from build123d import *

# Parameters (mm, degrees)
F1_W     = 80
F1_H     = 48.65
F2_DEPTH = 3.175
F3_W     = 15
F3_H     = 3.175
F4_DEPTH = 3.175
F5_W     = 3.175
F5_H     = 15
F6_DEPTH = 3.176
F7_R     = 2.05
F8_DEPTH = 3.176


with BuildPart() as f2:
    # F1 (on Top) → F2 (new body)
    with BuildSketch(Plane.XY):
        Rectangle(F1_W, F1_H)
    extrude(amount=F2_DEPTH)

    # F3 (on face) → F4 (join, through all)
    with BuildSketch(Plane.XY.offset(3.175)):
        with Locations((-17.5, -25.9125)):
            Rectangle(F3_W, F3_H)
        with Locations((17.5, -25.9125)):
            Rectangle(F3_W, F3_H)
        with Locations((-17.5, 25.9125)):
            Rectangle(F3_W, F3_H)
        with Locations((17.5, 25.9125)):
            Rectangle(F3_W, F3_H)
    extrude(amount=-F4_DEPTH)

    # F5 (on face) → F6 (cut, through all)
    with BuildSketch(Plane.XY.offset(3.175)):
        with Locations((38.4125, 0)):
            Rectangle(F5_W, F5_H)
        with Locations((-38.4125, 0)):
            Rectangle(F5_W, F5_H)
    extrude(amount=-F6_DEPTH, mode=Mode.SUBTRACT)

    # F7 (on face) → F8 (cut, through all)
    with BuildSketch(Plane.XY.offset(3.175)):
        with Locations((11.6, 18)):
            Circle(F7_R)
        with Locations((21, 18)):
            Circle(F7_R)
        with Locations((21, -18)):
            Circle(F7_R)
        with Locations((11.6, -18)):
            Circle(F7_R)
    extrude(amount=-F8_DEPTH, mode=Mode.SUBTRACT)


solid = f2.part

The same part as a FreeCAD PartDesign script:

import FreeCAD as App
import Part
import Sketcher
Q = App.Units.Quantity


def add_polygon(sketch, points):
    """Adds a closed chain of lines whose ends are joined by coincident constraints."""
    first, n = sketch.GeometryCount, len(points)
    for a, b in zip(points, points[1:] + points[:1]):
        sketch.addGeometry(Part.LineSegment(App.Vector(*a, 0), App.Vector(*b, 0)), False)
    for i in range(n):
        sketch.addConstraint(Sketcher.Constraint("Coincident", first + i, 2, first + (i + 1) % n, 1))

doc = App.newDocument("Part")
body = doc.addObject("PartDesign::Body", "Body")

sketch1 = body.newObject("Sketcher::SketchObject", "Sketch")
sketch1.AttachmentSupport = (doc.getObject("XY_Plane"), [""])
sketch1.MapMode = "FlatFace"
add_polygon(sketch1, [(-40, 24), (-40, -24), (40, -24), (40, 24)])
sketch1.addConstraint(Sketcher.Constraint("Vertical", 0))
sketch1.addConstraint(Sketcher.Constraint("Horizontal", 1))
sketch1.addConstraint(Sketcher.Constraint("Vertical", 2))
sketch1.addConstraint(Sketcher.Constraint("Horizontal", 3))
sketch1.addConstraint(Sketcher.Constraint("Symmetric", 0, 2, 2, 2, -1, 1))
sketch1.addConstraint(Sketcher.Constraint("DistanceX", 1, 1, 1, 2, Q("80 mm")))
sketch1.addConstraint(Sketcher.Constraint("DistanceY", 0, 2, 0, 1, Q("48.65 mm")))
pad1 = body.newObject("PartDesign::Pad", "Pad")
pad1.Profile = sketch1
pad1.Length = 3.175

sketch2 = body.newObject("Sketcher::SketchObject", "Sketch001")
sketch2.AttachmentSupport = (doc.getObject("XY_Plane"), [""])
sketch2.MapMode = "FlatFace"
sketch2.AttachmentOffset = App.Placement(App.Vector(0, 0, 3.175), App.Rotation())
add_polygon(sketch2, [(-25, -24.3), (-25, -27.5), (-10, -27.5), (-10, -24.3)])
add_polygon(sketch2, [(10, -24.3), (10, -27.5), (25, -27.5), (25, -24.3)])
add_polygon(sketch2, [(-25, 27.5), (-25, 24.3), (-10, 24.3), (-10, 27.5)])
add_polygon(sketch2, [(10, 27.5), (10, 24.3), (25, 24.3), (25, 27.5)])
sketch2.addConstraint(Sketcher.Constraint("Vertical", 0))
sketch2.addConstraint(Sketcher.Constraint("Horizontal", 1))
sketch2.addConstraint(Sketcher.Constraint("Vertical", 2))
sketch2.addConstraint(Sketcher.Constraint("Horizontal", 3))
sketch2.addConstraint(Sketcher.Constraint("Vertical", 4))
sketch2.addConstraint(Sketcher.Constraint("Horizontal", 5))
sketch2.addConstraint(Sketcher.Constraint("Vertical", 6))
sketch2.addConstraint(Sketcher.Constraint("Horizontal", 7))
sketch2.addConstraint(Sketcher.Constraint("Vertical", 8))
sketch2.addConstraint(Sketcher.Constraint("Horizontal", 9))
sketch2.addConstraint(Sketcher.Constraint("Vertical", 10))
sketch2.addConstraint(Sketcher.Constraint("Horizontal", 11))
sketch2.addConstraint(Sketcher.Constraint("Vertical", 12))
sketch2.addConstraint(Sketcher.Constraint("Horizontal", 13))
sketch2.addConstraint(Sketcher.Constraint("Vertical", 14))
sketch2.addConstraint(Sketcher.Constraint("Horizontal", 15))
sketch2.addConstraint(Sketcher.Constraint("Symmetric", 6, 2, 8, 2, -1, 1))
sketch2.addConstraint(Sketcher.Constraint("Symmetric", 4, 2, 10, 2, -1, 1))
sketch2.addConstraint(Sketcher.Constraint("Symmetric", 2, 2, 12, 2, -1, 1))
sketch2.addConstraint(Sketcher.Constraint("Symmetric", 0, 2, 14, 2, -1, 1))
sketch2.addConstraint(Sketcher.Constraint("Symmetric", 1, 2, 4, 2, -2))
sketch2.addConstraint(Sketcher.Constraint("Symmetric", 3, 2, 6, 2, -2))
sketch2.addConstraint(Sketcher.Constraint("DistanceX", 1, 1, 1, 2, Q("15 mm")))
sketch2.addConstraint(Sketcher.Constraint("DistanceX", 0, 2, -1, 1, Q("25 mm")))
sketch2.addConstraint(Sketcher.Constraint("DistanceY", 1, 2, 10, 2, Q("55 mm")))
sketch2.addConstraint(Sketcher.Constraint("DistanceY", 0, 2, 0, 1, Q("3.175 mm")))
pad2 = body.newObject("PartDesign::Pad", "Pad001")
pad2.Profile = sketch2
pad2.Type = "UpToLast"
pad2.Reversed = True

sketch3 = body.newObject("Sketcher::SketchObject", "Sketch002")
sketch3.AttachmentSupport = (doc.getObject("XY_Plane"), [""])
sketch3.MapMode = "FlatFace"
sketch3.AttachmentOffset = App.Placement(App.Vector(0, 0, 3.175), App.Rotation())
add_polygon(sketch3, [(36.8, 7.5), (36.8, -7.5), (40, -7.5), (40, 7.5)])
add_polygon(sketch3, [(-40, 7.5), (-40, -7.5), (-36.8, -7.5), (-36.8, 7.5)])
sketch3.addConstraint(Sketcher.Constraint("Vertical", 0))
sketch3.addConstraint(Sketcher.Constraint("Horizontal", 1))
sketch3.addConstraint(Sketcher.Constraint("Vertical", 2))
sketch3.addConstraint(Sketcher.Constraint("Horizontal", 3))
sketch3.addConstraint(Sketcher.Constraint("Vertical", 4))
sketch3.addConstraint(Sketcher.Constraint("Horizontal", 5))
sketch3.addConstraint(Sketcher.Constraint("Vertical", 6))
sketch3.addConstraint(Sketcher.Constraint("Horizontal", 7))
sketch3.addConstraint(Sketcher.Constraint("Symmetric", 2, 2, 4, 2, -1, 1))
sketch3.addConstraint(Sketcher.Constraint("Symmetric", 0, 2, 6, 2, -1, 1))
sketch3.addConstraint(Sketcher.Constraint("Horizontal", 1, 2, 4, 2))
sketch3.addConstraint(Sketcher.Constraint("DistanceY", 0, 2, 0, 1, Q("15 mm")))
sketch3.addConstraint(Sketcher.Constraint("DistanceX", -1, 1, 1, 2, Q("40 mm")))
sketch3.addConstraint(Sketcher.Constraint("DistanceX", 1, 1, 1, 2, Q("3.175 mm")))
pocket1 = body.newObject("PartDesign::Pocket", "Pocket")
pocket1.Profile = sketch3
pocket1.Type = "ThroughAll"

sketch4 = body.newObject("Sketcher::SketchObject", "Sketch003")
sketch4.AttachmentSupport = (doc.getObject("XY_Plane"), [""])
sketch4.MapMode = "FlatFace"
sketch4.AttachmentOffset = App.Placement(App.Vector(0, 0, 3.175), App.Rotation())
sketch4.addGeometry(Part.Circle(App.Vector(11.6, 18, 0), App.Vector(0, 0, 1), 2), False)
sketch4.addGeometry(Part.Circle(App.Vector(21, 18, 0), App.Vector(0, 0, 1), 2), False)
sketch4.addGeometry(Part.Circle(App.Vector(21, -18, 0), App.Vector(0, 0, 1), 2), False)
sketch4.addGeometry(Part.Circle(App.Vector(11.6, -18, 0), App.Vector(0, 0, 1), 2), False)
sketch4.addConstraint(Sketcher.Constraint("Equal", 0, 1))
sketch4.addConstraint(Sketcher.Constraint("Equal", 1, 2))
sketch4.addConstraint(Sketcher.Constraint("Equal", 2, 3))
sketch4.addConstraint(Sketcher.Constraint("Symmetric", 1, 3, 2, 3, -1))
sketch4.addConstraint(Sketcher.Constraint("Symmetric", 0, 3, 3, 3, -1))
sketch4.addConstraint(Sketcher.Constraint("Horizontal", 0, 3, 1, 3))
sketch4.addConstraint(Sketcher.Constraint("Diameter", 0, Q("4.1 mm")))
sketch4.addConstraint(Sketcher.Constraint("DistanceY", -1, 1, 0, 3, Q("18 mm")))
sketch4.addConstraint(Sketcher.Constraint("DistanceX", -1, 1, 1, 3, Q("21 mm")))
sketch4.addConstraint(Sketcher.Constraint("DistanceX", -1, 1, 0, 3, Q("11.6 mm")))
pocket2 = body.newObject("PartDesign::Pocket", "Pocket001")
pocket2.Profile = sketch4
pocket2.Type = "ThroughAll"

doc.recompute()
